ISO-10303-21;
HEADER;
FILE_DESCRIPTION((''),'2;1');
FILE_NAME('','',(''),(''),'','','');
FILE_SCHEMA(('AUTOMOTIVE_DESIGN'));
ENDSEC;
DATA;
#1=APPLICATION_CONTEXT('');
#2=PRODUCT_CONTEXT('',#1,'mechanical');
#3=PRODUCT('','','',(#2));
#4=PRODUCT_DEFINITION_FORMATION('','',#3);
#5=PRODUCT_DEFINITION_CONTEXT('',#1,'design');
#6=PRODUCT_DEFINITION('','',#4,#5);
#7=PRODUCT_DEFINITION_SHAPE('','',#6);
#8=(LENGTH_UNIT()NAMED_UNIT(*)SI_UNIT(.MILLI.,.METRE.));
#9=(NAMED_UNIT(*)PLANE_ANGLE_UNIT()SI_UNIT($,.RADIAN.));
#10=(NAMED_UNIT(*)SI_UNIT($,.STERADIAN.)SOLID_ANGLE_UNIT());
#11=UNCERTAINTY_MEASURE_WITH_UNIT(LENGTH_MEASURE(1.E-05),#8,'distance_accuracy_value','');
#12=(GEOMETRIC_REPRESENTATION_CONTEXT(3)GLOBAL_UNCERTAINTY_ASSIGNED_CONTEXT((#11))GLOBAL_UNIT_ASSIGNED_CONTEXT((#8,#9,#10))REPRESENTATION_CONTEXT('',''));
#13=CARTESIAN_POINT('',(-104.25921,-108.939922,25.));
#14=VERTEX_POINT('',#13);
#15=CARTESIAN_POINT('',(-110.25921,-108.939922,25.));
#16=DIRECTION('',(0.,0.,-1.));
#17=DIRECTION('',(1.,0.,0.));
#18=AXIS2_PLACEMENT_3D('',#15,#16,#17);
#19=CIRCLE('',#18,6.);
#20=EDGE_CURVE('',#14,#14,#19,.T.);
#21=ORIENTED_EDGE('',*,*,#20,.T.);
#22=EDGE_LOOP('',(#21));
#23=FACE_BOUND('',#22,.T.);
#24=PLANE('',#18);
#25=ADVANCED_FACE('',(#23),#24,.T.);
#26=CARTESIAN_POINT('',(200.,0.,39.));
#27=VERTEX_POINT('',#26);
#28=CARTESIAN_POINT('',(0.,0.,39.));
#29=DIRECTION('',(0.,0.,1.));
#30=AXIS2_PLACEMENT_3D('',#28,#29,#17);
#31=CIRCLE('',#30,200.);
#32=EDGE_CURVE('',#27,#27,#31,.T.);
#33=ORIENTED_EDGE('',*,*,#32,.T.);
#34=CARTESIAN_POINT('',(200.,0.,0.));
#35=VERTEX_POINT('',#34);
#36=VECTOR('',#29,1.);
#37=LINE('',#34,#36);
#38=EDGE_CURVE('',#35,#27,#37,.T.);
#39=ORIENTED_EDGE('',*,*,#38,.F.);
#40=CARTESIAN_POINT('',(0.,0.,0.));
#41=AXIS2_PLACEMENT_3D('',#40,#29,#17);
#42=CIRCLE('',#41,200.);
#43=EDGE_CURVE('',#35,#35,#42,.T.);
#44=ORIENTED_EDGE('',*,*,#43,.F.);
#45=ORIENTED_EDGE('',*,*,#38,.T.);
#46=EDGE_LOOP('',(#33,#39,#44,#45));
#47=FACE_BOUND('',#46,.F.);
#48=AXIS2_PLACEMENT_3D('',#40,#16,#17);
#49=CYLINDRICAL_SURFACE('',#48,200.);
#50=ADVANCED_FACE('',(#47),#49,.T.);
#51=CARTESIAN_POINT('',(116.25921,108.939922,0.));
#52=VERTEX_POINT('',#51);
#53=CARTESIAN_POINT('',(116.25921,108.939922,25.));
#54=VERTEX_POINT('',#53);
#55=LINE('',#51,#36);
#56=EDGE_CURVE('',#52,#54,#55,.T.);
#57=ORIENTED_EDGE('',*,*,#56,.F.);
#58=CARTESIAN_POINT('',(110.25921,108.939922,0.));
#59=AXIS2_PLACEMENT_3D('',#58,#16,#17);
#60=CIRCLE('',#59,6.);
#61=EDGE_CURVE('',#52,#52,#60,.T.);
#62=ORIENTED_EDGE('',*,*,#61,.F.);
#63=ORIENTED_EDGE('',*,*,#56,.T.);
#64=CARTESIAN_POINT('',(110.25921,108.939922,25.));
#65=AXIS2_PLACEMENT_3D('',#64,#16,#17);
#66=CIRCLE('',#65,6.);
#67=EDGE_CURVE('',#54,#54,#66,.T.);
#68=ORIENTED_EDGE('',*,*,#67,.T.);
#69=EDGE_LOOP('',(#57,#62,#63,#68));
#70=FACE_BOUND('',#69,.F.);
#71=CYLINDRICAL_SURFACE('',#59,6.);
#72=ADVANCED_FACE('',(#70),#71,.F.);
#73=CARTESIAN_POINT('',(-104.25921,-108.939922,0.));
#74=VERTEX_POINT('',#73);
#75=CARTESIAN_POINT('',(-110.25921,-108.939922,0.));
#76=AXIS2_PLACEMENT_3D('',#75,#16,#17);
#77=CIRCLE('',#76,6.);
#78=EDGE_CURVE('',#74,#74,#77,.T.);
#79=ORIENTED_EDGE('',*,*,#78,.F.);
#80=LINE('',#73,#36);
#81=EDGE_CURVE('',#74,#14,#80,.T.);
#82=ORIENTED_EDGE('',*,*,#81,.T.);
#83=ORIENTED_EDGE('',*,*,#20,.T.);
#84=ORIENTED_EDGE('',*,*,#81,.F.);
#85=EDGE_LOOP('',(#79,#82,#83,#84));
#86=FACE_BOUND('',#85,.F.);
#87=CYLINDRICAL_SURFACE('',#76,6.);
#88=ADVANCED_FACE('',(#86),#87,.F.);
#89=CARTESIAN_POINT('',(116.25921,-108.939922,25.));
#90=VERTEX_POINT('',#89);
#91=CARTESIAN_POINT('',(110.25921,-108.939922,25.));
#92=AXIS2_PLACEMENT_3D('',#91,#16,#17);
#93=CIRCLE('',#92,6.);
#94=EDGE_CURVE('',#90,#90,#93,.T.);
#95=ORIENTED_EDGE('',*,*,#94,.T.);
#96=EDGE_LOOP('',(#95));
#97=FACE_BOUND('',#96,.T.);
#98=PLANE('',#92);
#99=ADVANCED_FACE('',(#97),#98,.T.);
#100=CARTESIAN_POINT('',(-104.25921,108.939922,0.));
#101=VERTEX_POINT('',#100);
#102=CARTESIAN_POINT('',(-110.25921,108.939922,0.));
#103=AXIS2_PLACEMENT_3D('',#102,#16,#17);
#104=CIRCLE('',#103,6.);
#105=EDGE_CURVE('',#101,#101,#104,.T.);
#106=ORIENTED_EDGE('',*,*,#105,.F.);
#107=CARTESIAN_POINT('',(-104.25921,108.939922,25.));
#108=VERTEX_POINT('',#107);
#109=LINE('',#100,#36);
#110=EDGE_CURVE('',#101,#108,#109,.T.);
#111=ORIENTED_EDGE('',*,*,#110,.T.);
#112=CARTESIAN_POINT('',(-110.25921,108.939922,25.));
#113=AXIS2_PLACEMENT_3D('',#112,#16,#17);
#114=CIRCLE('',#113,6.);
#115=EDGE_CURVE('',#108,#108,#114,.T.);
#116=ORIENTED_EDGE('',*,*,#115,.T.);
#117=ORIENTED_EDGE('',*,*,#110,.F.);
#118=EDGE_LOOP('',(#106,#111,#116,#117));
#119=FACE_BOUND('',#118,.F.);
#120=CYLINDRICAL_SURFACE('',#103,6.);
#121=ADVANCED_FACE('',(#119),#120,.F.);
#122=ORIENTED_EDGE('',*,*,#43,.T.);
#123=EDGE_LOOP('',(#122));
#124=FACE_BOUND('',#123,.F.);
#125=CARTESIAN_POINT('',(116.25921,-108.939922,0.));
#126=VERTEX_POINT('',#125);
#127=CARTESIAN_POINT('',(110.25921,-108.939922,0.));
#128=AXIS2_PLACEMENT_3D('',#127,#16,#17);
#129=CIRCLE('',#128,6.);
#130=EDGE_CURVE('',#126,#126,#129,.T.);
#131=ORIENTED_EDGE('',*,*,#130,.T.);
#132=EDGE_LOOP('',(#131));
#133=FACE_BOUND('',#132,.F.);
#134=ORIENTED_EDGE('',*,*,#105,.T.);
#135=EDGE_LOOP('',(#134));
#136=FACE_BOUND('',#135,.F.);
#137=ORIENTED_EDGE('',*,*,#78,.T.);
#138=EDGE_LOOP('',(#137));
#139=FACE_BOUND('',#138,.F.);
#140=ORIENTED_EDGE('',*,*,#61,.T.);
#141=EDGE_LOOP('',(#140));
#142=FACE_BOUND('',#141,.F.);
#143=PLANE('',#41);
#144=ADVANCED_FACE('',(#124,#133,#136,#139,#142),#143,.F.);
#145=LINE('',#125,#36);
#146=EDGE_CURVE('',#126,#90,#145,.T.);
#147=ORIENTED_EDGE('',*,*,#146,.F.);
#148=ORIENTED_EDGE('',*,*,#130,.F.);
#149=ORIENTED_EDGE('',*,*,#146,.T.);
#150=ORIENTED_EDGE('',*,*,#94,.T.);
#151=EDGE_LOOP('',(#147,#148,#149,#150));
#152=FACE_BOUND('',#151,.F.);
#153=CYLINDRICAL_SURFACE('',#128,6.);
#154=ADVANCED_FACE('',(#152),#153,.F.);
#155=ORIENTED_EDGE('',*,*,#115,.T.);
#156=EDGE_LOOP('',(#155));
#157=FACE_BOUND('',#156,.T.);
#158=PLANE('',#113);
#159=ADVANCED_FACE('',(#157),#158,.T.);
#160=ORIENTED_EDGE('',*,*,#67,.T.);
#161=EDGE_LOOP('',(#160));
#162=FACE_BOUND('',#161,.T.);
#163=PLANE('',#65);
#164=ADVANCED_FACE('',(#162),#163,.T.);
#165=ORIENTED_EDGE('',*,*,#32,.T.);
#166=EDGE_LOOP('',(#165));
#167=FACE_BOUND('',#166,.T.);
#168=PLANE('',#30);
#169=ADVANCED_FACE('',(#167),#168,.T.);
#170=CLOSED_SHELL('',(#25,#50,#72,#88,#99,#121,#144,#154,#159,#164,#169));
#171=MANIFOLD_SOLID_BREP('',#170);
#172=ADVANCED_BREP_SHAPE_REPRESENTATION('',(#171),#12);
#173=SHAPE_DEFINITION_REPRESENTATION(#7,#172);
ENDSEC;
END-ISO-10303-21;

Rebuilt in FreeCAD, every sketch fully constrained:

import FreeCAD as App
import Part
import Sketcher

V = App.Vector
Q = App.Units.Quantity

doc = App.newDocument("Part")
params = doc.addObject("Spreadsheet::Sheet", "Params")
for row, (alias, value) in enumerate([
    ("sketch1_diameter", "400 mm"),
    ("pad1_length", "39 mm"),
    ("sketch2_diameter", "12 mm"),
    ("pocket1_length", "25 mm"),
], start=1):
    params.set(f"A{row}", alias)
    params.set(f"B{row}", "=" + value)
    params.setAlias(f"B{row}", alias)

body = doc.addObject("PartDesign::Body", "Body")

sketch1 = doc.addObject("Sketcher::SketchObject", "Sketch")
body.addObject(sketch1)
sketch1.AttachmentSupport = (doc.XY_Plane, [""])
sketch1.MapMode = "FlatFace"
sketch1.addGeometry(Part.Circle(V(0, 0, 0), V(0, 0, 1), 200), False)
sketch1.addConstraint(Sketcher.Constraint("Coincident", 0, 3, -1, 1))
sketch1.addConstraint(Sketcher.Constraint("Diameter", 0, Q("400 mm")))
sketch1.setExpression("Constraints[1]", "Params.sketch1_diameter")
pad1 = doc.addObject("PartDesign::Pad", "Pad")
body.addObject(pad1)
pad1.Profile = sketch1
pad1.setExpression("Length", "Params.pad1_length")

sketch2 = doc.addObject("Sketcher::SketchObject", "Sketch001")
body.addObject(sketch2)
sketch2.AttachmentSupport = (doc.XY_Plane, [""])
sketch2.MapMode = "FlatFace"
sketch2.addGeometry(Part.Circle(V(110, -109, 0), V(0, 0, 1), 6), False)
sketch2.addGeometry(Part.Circle(V(110, 109, 0), V(0, 0, 1), 6), False)
sketch2.addGeometry(Part.Circle(V(-110, 109, 0), V(0, 0, 1), 6), False)
sketch2.addGeometry(Part.Circle(V(-110, -109, 0), V(0, 0, 1), 6), False)
sketch2.addConstraint(Sketcher.Constraint("Equal", 0, 1))
sketch2.addConstraint(Sketcher.Constraint("Equal", 1, 2))
sketch2.addConstraint(Sketcher.Constraint("Equal", 2, 3))
sketch2.addConstraint(Sketcher.Constraint("Symmetric", 0, 3, 2, 3, -1, 1))
sketch2.addConstraint(Sketcher.Constraint("Symmetric", 1, 3, 3, 3, -1, 1))
sketch2.addConstraint(Sketcher.Constraint("Symmetric", 1, 3, 2, 3, -2))
sketch2.addConstraint(Sketcher.Constraint("Diameter", 0, Q("12 mm")))
sketch2.addConstraint(Sketcher.Constraint("DistanceX", -1, 1, 0, 3, Q("110.25921 mm")))
sketch2.addConstraint(Sketcher.Constraint("DistanceY", 0, 3, -1, 1, Q("108.939922 mm")))
sketch2.setExpression("Constraints[6]", "Params.sketch2_diameter")
pocket1 = doc.addObject("PartDesign::Pocket", "Pocket")
body.addObject(pocket1)
pocket1.Profile = sketch2
pocket1.setExpression("Length", "Params.pocket1_length")
pocket1.Reversed = True

doc.recompute()
